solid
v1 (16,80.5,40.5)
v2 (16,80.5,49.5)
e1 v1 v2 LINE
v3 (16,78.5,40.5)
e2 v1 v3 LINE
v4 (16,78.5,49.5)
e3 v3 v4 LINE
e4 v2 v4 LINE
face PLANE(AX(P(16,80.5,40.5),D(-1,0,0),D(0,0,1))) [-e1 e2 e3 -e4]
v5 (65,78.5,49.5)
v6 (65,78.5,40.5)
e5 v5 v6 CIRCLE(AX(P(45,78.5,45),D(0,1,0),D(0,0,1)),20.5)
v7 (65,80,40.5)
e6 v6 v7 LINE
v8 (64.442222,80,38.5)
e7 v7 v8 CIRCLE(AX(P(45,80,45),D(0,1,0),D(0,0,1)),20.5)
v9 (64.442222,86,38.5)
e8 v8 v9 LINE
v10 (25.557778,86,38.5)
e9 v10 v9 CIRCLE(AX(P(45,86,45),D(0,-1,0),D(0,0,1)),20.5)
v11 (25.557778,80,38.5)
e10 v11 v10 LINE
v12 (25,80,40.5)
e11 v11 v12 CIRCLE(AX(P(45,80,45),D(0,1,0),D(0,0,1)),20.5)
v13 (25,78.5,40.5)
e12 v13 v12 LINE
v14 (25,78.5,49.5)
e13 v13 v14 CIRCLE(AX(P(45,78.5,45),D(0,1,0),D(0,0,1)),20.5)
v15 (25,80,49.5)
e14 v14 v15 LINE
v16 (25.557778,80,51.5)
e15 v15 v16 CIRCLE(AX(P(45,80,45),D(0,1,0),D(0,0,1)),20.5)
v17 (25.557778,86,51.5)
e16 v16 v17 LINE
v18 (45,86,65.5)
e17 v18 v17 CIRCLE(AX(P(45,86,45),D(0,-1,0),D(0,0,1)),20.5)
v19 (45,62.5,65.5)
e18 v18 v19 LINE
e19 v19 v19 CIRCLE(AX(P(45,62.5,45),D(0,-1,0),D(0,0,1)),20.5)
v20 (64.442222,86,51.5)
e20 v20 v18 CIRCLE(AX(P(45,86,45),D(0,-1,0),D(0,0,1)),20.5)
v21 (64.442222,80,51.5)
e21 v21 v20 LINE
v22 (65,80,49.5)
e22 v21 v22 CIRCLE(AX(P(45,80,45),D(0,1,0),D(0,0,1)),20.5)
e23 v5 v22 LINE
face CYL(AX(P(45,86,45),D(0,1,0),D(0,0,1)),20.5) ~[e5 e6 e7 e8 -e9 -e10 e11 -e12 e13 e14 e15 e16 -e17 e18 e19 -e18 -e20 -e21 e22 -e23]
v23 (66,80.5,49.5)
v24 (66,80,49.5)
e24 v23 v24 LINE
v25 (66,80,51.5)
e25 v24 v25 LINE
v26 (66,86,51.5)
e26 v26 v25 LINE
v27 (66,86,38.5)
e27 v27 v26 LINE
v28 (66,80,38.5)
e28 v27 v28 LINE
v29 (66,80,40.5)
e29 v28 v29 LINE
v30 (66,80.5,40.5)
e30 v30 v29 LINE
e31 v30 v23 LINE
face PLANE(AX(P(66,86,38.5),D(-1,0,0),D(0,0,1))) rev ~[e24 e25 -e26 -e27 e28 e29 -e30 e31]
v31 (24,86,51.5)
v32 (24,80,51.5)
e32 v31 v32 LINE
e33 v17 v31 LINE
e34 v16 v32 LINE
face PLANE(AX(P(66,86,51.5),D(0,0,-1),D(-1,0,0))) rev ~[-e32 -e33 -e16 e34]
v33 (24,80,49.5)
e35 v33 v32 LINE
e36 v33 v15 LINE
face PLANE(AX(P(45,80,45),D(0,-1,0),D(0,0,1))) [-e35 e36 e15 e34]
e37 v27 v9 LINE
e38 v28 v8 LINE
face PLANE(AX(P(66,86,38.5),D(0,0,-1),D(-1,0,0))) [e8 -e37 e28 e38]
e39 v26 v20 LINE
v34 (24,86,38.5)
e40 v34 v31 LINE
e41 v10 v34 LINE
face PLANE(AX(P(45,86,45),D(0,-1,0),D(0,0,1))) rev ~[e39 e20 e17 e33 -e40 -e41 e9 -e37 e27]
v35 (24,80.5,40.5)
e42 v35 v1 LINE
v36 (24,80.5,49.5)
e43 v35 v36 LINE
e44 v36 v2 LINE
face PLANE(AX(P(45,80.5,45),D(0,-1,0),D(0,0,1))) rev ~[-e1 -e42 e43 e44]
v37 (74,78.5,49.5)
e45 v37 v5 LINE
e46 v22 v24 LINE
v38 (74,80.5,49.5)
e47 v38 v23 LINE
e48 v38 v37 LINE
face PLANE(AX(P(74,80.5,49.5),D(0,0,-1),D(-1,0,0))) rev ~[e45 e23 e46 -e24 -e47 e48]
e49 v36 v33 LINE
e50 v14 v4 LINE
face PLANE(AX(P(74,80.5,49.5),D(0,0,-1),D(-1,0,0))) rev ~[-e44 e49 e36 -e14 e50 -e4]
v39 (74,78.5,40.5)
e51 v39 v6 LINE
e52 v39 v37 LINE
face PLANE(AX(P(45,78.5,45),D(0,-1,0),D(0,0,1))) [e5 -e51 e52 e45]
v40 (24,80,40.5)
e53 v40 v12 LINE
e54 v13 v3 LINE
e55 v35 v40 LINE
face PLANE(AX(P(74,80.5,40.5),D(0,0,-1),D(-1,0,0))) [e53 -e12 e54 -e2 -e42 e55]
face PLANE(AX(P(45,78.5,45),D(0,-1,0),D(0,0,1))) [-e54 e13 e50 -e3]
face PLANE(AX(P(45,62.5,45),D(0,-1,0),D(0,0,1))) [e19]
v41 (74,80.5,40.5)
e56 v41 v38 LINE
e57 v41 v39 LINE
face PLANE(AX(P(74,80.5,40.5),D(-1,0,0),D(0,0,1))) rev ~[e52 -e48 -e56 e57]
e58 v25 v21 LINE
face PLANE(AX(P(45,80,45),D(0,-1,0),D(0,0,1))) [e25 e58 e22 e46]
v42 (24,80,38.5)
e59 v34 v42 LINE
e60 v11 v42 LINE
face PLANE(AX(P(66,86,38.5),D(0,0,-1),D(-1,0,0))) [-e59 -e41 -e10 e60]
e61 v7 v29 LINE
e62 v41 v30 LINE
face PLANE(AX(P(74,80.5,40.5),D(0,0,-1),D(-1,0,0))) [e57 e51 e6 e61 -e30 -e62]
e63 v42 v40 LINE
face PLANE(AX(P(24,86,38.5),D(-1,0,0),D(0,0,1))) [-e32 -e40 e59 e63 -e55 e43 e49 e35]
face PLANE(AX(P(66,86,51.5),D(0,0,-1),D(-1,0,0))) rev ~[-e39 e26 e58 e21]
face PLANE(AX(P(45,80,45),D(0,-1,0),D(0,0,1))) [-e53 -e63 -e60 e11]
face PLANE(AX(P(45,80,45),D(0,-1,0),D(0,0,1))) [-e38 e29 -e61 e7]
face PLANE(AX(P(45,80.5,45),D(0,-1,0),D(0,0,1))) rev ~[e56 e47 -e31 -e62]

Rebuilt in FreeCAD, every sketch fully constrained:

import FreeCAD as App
import Part
import Sketcher

V = App.Vector


def add_polygon(sketch, points):
    """Adds a closed chain of lines whose ends are joined by coincident constraints."""
    first, n = sketch.GeometryCount, len(points)
    for a, b in zip(points, points[1:] + points[:1]):
        sketch.addGeometry(Part.LineSegment(App.Vector(*a, 0), App.Vector(*b, 0)), False)
    for i in range(n):
        sketch.addConstraint(Sketcher.Constraint("Coincident", first + i, 2, first + (i + 1) % n, 1))

doc = App.newDocument("Part")
params = doc.addObject("Spreadsheet::Sheet", "Params")
for row, (alias, value) in enumerate([
    ("sketch1_width", "13 mm"),
    ("sketch1_height", "42 mm"),
    ("pad1_length", "6 mm"),
    ("sketch2_width", "9 mm"),
    ("sketch2_height", "58 mm"),
    ("pad2_length", "2 mm"),
    ("sketch3_diameter", "41 mm"),
    ("pad3_length", "23.5 mm"),
], start=1):
    params.set(f"A{row}", alias)
    params.set(f"B{row}", "=" + value)
    params.setAlias(f"B{row}", alias)

body = doc.addObject("PartDesign::Body", "Body")

sketch1 = doc.addObject("Sketcher::SketchObject", "Sketch")
body.addObject(sketch1)
sketch1.AttachmentSupport = (doc.XY_Plane, [""])
sketch1.MapMode = "FlatFace"
add_polygon(sketch1, [(-6, 21), (-6, -21), (6, -21), (6, 21)])
sketch1.addConstraint(Sketcher.Constraint("Vertical", 0))
sketch1.addConstraint(Sketcher.Constraint("Horizontal", 1))
sketch1.addConstraint(Sketcher.Constraint("Vertical", 2))
sketch1.addConstraint(Sketcher.Constraint("Horizontal", 3))
sketch1.addConstraint(Sketcher.Constraint("Symmetric", 0, 2, 2, 2, -1, 1))
sketch1.addConstraint(Sketcher.Constraint("DistanceX", 1, 1, 1, 2, 13.0))
sketch1.addConstraint(Sketcher.Constraint("DistanceY", 0, 2, 0, 1, 42.0))
sketch1.setExpression("Constraints[9]", "Params.sketch1_width")
sketch1.setExpression("Constraints[10]", "Params.sketch1_height")
pad1 = doc.addObject("PartDesign::Pad", "Pad")
body.addObject(pad1)
pad1.Profile = sketch1
pad1.setExpression("Length", "Params.pad1_length")
body2 = doc.addObject("PartDesign::Body", "Body001")

sketch2 = doc.addObject("Sketcher::SketchObject", "Sketch001")
body2.addObject(sketch2)
sketch2.AttachmentSupport = (doc.getObject("XY_Plane001"), [""])
sketch2.MapMode = "FlatFace"
sketch2.AttachmentOffset = App.Placement(V(0, 0, 5.5), App.Rotation())
add_polygon(sketch2, [(-4, 29), (-4, -29), (4, -29), (4, 29)])
sketch2.addConstraint(Sketcher.Constraint("Vertical", 0))
sketch2.addConstraint(Sketcher.Constraint("Horizontal", 1))
sketch2.addConstraint(Sketcher.Constraint("Vertical", 2))
sketch2.addConstraint(Sketcher.Constraint("Horizontal", 3))
sketch2.addConstraint(Sketcher.Constraint("Symmetric", 0, 2, 2, 2, -1, 1))
sketch2.addConstraint(Sketcher.Constraint("DistanceX", 1, 1, 1, 2, 9.0))
sketch2.addConstraint(Sketcher.Constraint("DistanceY", 0, 2, 0, 1, 58.0))
sketch2.setExpression("Constraints[9]", "Params.sketch2_width")
sketch2.setExpression("Constraints[10]", "Params.sketch2_height")
pad2 = doc.addObject("PartDesign::Pad", "Pad001")
body2.addObject(pad2)
pad2.Profile = sketch2
pad2.setExpression("Length", "Params.pad2_length")
body3 = doc.addObject("PartDesign::Body", "Body002")

sketch3 = doc.addObject("Sketcher::SketchObject", "Sketch002")
body3.addObject(sketch3)
sketch3.AttachmentSupport = (doc.getObject("XY_Plane002"), [""])
sketch3.MapMode = "FlatFace"
sketch3.addGeometry(Part.Circle(V(0, 0, 0), V(0, 0, 1), 20), False)
sketch3.addConstraint(Sketcher.Constraint("Coincident", 0, 3, -1, 1))
sketch3.addConstraint(Sketcher.Constraint("Diameter", 0, 41.0))
sketch3.setExpression("Constraints[1]", "Params.sketch3_diameter")
pad3 = doc.addObject("PartDesign::Pad", "Pad002")
body3.addObject(pad3)
pad3.Profile = sketch3
pad3.setExpression("Length", "Params.pad3_length")
doc.recompute()

boolean = doc.addObject("PartDesign::Boolean", "Boolean")
body3.addObject(boolean)
boolean.Type = "Fuse"
boolean.addObjects([body])
doc.recompute()

boolean2 = doc.addObject("PartDesign::Boolean", "Boolean001")
body3.addObject(boolean2)
boolean2.Type = "Fuse"
boolean2.addObjects([body2])
body4 = doc.addObject("PartDesign::Body", "Body003")
doc.recompute()

body3.Placement = App.Placement(V(0, 0, 0), App.Rotation(V(0, 1, 0), 270))
boolean3 = doc.addObject("PartDesign::Boolean", "Boolean002")
body4.addObject(boolean3)
boolean3.Type = "Fuse"
boolean3.addObjects([body3])
body5 = doc.addObject("PartDesign::Body", "Body004")
doc.recompute()

body4.Placement = App.Placement(V(45, 86, 45), App.Rotation(V(0, 0, 1), 90))
boolean4 = doc.addObject("PartDesign::Boolean", "Boolean003")
body5.addObject(boolean4)
boolean4.Type = "Fuse"
boolean4.addObjects([body4])

doc.recompute()
